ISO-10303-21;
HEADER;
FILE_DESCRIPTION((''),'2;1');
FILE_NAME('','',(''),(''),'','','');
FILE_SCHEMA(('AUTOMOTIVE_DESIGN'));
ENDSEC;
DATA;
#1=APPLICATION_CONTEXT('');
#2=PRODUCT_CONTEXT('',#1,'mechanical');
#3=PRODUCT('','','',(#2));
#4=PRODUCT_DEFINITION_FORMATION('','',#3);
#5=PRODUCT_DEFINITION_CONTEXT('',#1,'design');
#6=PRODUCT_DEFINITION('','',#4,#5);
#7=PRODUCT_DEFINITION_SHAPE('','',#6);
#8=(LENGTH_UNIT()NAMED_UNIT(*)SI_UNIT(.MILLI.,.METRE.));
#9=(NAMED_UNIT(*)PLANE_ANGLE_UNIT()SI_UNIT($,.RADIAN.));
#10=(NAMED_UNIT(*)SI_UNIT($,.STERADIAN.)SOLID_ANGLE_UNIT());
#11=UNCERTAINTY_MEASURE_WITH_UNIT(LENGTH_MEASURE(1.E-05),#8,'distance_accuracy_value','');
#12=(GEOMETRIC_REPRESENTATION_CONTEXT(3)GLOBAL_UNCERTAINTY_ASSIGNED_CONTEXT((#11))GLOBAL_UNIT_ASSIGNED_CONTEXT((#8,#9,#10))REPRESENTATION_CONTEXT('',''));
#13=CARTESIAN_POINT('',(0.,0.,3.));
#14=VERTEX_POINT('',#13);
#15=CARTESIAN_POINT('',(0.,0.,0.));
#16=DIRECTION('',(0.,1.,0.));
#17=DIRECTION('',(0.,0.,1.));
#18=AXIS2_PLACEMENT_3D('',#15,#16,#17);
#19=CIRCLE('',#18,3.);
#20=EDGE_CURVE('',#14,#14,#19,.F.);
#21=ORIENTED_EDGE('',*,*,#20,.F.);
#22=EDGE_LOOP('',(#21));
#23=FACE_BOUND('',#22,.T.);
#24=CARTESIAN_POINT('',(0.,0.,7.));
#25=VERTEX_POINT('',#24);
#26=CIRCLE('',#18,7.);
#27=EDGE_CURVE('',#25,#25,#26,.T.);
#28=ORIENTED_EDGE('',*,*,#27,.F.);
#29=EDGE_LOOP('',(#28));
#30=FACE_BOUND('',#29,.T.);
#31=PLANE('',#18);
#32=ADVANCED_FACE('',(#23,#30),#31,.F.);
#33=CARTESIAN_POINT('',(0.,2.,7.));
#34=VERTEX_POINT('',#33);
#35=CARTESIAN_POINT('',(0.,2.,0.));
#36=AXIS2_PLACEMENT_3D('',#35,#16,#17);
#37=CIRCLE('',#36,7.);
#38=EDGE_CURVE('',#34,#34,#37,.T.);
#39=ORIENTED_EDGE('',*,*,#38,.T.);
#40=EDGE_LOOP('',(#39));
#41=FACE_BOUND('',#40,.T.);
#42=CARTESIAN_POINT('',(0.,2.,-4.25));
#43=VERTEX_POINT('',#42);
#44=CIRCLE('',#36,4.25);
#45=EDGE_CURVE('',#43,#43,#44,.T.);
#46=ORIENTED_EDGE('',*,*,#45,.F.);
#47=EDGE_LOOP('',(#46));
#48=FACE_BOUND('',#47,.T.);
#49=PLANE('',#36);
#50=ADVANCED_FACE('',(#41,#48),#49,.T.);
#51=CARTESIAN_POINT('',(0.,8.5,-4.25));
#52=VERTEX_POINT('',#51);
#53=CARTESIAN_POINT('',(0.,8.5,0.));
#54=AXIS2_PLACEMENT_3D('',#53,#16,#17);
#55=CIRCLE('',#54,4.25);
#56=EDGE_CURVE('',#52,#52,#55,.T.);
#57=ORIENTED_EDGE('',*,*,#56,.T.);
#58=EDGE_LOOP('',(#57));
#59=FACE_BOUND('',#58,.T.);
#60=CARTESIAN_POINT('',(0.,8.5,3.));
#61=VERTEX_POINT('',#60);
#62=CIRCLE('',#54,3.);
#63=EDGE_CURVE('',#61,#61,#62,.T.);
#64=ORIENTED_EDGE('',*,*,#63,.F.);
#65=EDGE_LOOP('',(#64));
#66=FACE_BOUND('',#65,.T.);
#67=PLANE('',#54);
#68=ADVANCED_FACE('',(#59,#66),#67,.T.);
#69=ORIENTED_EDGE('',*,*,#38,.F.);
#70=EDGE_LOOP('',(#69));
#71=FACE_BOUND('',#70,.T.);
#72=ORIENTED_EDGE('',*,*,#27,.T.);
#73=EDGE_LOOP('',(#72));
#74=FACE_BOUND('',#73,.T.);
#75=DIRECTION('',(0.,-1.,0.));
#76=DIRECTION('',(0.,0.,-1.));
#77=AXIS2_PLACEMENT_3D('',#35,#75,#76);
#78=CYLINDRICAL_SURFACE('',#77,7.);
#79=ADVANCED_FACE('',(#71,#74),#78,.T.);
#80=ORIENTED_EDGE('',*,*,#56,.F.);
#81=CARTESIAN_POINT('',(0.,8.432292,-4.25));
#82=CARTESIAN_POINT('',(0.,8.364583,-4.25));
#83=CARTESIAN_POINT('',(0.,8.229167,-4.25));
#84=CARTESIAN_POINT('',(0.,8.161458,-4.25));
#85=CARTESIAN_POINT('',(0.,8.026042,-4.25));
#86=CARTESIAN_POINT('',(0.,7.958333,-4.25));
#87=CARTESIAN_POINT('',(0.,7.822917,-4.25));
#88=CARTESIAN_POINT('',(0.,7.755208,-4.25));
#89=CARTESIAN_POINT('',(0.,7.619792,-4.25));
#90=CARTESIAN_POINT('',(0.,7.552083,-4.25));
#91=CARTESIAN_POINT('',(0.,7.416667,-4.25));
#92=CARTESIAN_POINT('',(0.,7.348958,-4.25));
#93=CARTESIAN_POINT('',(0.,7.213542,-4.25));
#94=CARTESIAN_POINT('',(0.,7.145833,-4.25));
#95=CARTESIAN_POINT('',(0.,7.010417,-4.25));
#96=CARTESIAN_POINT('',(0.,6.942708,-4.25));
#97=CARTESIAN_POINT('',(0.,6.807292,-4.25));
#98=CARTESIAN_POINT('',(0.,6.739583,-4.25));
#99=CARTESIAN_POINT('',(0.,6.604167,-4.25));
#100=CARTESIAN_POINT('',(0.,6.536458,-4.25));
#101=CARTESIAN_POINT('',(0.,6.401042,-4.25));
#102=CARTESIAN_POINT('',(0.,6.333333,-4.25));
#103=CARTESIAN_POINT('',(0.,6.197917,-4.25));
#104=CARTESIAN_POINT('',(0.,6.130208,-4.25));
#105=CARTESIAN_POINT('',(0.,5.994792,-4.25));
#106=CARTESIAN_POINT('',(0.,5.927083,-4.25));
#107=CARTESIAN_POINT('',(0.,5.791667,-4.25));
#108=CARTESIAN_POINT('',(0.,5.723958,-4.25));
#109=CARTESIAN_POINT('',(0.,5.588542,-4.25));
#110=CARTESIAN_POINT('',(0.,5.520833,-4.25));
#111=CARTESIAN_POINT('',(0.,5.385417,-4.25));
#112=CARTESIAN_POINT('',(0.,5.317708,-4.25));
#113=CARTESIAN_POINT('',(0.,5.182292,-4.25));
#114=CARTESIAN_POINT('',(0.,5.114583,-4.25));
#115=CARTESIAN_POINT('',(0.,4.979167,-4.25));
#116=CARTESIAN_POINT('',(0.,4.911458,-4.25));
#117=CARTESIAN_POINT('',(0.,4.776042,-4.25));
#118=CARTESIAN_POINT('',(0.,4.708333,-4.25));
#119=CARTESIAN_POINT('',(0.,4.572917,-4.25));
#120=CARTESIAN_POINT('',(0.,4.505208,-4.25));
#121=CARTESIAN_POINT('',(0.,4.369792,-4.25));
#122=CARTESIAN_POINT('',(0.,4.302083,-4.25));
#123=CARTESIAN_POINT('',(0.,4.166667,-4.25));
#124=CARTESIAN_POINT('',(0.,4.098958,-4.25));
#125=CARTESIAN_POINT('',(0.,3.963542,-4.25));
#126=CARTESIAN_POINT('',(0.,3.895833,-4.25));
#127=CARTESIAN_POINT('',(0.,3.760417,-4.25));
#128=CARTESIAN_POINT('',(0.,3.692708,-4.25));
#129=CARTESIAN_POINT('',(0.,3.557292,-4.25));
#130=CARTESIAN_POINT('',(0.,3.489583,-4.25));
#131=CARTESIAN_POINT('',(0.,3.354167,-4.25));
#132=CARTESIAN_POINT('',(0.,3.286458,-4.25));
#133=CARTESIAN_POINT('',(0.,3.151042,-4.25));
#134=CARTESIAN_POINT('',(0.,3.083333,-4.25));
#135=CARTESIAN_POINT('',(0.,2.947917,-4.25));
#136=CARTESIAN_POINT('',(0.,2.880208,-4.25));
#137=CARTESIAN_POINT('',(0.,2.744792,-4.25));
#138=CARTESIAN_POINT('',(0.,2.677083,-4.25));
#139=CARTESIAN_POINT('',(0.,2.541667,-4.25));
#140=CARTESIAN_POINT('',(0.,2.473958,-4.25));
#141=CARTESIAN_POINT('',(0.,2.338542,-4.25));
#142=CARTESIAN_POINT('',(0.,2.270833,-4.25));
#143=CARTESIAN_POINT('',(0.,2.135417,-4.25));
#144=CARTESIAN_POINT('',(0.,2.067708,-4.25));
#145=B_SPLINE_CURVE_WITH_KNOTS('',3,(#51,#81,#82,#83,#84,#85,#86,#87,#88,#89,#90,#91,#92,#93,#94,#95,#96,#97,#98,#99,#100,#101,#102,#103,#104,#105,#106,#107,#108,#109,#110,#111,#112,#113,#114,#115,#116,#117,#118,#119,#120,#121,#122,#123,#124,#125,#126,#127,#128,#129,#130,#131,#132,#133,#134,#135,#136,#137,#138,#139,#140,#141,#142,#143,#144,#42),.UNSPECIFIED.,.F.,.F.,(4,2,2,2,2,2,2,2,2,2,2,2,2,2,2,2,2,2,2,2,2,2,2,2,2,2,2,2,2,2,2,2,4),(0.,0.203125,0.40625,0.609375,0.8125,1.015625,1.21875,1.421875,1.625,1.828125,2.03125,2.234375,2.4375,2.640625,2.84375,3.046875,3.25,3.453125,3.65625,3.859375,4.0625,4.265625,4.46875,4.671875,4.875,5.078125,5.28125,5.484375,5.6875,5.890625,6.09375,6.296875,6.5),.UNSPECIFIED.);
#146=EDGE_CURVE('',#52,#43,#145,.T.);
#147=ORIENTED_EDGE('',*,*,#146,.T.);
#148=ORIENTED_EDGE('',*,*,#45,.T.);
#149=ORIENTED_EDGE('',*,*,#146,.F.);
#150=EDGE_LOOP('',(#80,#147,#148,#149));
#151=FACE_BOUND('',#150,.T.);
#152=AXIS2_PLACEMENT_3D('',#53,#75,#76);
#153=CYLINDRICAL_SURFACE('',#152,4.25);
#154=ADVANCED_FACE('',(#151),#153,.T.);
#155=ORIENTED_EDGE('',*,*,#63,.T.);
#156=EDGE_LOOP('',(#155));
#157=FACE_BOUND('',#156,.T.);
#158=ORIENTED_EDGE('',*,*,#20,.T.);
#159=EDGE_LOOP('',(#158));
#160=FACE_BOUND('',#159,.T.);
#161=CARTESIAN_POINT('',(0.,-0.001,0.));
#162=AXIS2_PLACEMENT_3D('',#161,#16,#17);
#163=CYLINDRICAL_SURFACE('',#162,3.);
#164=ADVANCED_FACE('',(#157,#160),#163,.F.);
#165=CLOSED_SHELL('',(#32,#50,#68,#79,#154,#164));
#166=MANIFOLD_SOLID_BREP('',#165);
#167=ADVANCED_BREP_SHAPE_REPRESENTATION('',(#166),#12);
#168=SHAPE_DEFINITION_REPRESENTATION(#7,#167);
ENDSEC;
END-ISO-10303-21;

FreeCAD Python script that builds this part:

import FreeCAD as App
import Part
import Sketcher
from FreeCAD import Vector
Q = App.Units.Quantity

doc = App.newDocument("Part")
params = doc.addObject("Spreadsheet::Sheet", "Params")
for row, (alias, value) in enumerate([
    ("sketch1_diameter", "14 mm"),
    ("pad1_length", "2 mm"),
    ("sketch2_diameter", "8.5 mm"),
    ("pad2_length", "6.5 mm"),
    ("sketch3_diameter", "6 mm"),
], start=1):
    params.set(f"A{row}", alias)
    params.set(f"B{row}", "=" + value)
    params.setAlias(f"B{row}", alias)

body = doc.addObject("PartDesign::Body", "Body")

# Sketch on XZ plane
sketch1 = body.newObject("Sketcher::SketchObject", "Sketch")
sketch1.AttachmentSupport = (doc.getObject("XZ_Plane"), [""])
sketch1.MapMode = "FlatFace"
sketch1.addGeometry(Part.Circle(Vector(0, 0, 0), Vector(0, 0, 1), 7), False)
sketch1.addConstraint([
    Sketcher.Constraint("Coincident", 0, 3, -1, 1),
    Sketcher.Constraint("Diameter", 0, Q("14 mm")),
])
sketch1.setExpression("Constraints[1]", "Params.sketch1_diameter")
pad1 = body.newObject("PartDesign::Pad", "Pad")
pad1.Profile = sketch1
pad1.setExpression("Length", "Params.pad1_length")
pad1.Reversed = True

# Sketch on XZ plane
sketch2 = body.newObject("Sketcher::SketchObject", "Sketch001")
sketch2.AttachmentSupport = (doc.getObject("XZ_Plane"), [""])
sketch2.MapMode = "FlatFace"
sketch2.AttachmentOffset = App.Placement(Vector(0, 0, -2), App.Rotation())
sketch2.addGeometry(Part.Circle(Vector(0, 0, 0), Vector(0, 0, 1), 4.2), False)
sketch2.addConstraint([
    Sketcher.Constraint("Coincident", 0, 3, -1, 1),
    Sketcher.Constraint("Diameter", 0, Q("8.5 mm")),
])
sketch2.setExpression("Constraints[1]", "Params.sketch2_diameter")
pad2 = body.newObject("PartDesign::Pad", "Pad001")
pad2.Profile = sketch2
pad2.setExpression("Length", "Params.pad2_length")
pad2.Reversed = True

# Sketch on XZ plane
sketch3 = body.newObject("Sketcher::SketchObject", "Sketch002")
sketch3.AttachmentSupport = (doc.getObject("XZ_Plane"), [""])
sketch3.MapMode = "FlatFace"
sketch3.AttachmentOffset = App.Placement(Vector(0, 0, -8.5), App.Rotation())
sketch3.addGeometry(Part.Circle(Vector(0, 0, 0), Vector(0, 0, 1), 3), False)
sketch3.addConstraint([
    Sketcher.Constraint("Coincident", 0, 3, -1, 1),
    Sketcher.Constraint("Diameter", 0, Q("6 mm")),
])
sketch3.setExpression("Constraints[1]", "Params.sketch3_diameter")
pocket1 = body.newObject("PartDesign::Pocket", "Pocket")
pocket1.Profile = sketch3
pocket1.Type = "UpToFirst"
pocket1.Reversed = True

doc.recompute()
